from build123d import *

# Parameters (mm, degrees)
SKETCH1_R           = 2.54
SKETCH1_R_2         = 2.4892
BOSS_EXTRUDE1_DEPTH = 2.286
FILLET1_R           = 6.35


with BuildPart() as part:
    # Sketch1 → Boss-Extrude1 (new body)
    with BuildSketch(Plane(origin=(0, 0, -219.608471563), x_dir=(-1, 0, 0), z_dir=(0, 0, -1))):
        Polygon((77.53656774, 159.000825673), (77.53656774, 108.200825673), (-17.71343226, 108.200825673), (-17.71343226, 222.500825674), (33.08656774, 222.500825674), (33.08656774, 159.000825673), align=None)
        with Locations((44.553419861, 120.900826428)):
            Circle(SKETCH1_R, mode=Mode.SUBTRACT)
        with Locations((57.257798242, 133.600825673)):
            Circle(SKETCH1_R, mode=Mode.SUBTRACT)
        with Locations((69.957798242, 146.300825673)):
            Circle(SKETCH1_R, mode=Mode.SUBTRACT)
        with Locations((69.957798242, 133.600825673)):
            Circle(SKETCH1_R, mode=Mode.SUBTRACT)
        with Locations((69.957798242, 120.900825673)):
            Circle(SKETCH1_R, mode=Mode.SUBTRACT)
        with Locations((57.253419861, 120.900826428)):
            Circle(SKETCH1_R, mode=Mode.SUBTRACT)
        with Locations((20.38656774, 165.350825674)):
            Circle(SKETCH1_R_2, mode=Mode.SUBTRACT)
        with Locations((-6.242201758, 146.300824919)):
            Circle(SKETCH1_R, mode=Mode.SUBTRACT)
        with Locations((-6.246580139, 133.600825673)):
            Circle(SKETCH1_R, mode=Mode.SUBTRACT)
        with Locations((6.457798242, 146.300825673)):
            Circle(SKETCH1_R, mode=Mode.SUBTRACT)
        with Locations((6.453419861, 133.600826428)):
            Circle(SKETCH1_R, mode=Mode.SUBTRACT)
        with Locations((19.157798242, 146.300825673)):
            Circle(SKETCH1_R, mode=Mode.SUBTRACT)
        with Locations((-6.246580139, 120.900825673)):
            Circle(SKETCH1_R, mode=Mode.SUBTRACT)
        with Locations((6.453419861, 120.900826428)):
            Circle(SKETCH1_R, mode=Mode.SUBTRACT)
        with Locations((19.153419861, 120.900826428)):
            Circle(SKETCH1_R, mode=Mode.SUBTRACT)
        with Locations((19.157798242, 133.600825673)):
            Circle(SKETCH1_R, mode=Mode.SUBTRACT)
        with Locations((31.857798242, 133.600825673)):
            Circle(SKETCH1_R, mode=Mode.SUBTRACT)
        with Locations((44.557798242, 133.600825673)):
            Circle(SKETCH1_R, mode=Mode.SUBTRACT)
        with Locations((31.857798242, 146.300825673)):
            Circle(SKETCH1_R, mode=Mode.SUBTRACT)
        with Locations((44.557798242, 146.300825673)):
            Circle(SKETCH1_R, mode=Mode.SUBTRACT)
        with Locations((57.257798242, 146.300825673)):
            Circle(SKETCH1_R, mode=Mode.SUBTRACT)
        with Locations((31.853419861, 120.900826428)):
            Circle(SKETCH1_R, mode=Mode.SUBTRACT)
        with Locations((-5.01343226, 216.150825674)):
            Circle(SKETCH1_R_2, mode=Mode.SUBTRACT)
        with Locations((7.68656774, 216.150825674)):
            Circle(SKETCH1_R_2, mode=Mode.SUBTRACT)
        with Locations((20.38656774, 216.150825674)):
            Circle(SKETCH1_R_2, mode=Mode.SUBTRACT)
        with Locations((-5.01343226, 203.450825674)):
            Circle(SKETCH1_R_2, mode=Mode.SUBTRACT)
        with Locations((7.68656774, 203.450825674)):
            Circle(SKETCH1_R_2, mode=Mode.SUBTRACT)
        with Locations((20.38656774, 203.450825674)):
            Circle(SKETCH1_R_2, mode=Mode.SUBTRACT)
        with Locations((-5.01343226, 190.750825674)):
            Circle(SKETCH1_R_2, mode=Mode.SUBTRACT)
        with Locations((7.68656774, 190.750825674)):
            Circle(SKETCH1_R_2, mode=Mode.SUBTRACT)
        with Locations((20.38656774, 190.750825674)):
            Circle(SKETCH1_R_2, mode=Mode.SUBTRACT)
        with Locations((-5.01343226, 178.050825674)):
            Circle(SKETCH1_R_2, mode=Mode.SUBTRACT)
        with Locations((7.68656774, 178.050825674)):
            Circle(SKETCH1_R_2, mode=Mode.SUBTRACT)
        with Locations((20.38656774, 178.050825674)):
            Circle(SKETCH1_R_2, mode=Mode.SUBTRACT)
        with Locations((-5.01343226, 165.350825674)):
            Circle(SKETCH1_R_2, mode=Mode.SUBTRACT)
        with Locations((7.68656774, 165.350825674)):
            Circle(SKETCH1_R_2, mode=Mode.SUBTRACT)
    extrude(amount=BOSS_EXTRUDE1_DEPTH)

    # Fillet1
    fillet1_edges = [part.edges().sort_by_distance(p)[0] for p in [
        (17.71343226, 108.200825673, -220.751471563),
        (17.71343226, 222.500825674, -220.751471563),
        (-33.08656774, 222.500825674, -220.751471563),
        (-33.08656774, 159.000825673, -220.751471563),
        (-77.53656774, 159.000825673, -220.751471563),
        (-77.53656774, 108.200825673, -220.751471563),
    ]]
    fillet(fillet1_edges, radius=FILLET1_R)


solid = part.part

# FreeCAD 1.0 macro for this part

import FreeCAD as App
import Part
import Sketcher

V = App.Vector
Q = App.Units.Quantity


def edges_at(feature, points):
    """Names of the edges that pass closest to the given points."""
    edges = feature.Shape.Edges
    near = lambda p: min(range(len(edges)), key=lambda i: edges[i].distToShape(Part.Vertex(*p))[0])
    return sorted({f"Edge{near(p) + 1}" for p in points})

doc = App.newDocument("Part")
body = doc.addObject("PartDesign::Body", "Body")

# Sketch on XY plane
sketch1 = doc.addObject("Sketcher::SketchObject", "Sketch")
body.addObject(sketch1)
sketch1.AttachmentSupport = (doc.XY_Plane, [""])
sketch1.MapMode = "FlatFace"
sketch1.AttachmentOffset = App.Placement(V(0, 0, -219.608472), App.Rotation())
sketch1.addGeometry(Part.LineSegment(V(-77.5, 108.2, 0), V(-77.5, 159, 0)), False)
sketch1.addGeometry(Part.LineSegment(V(-77.5, 159, 0), V(-33.1, 159, 0)), False)
sketch1.addGeometry(Part.LineSegment(V(-33.1, 159, 0), V(-33.1, 222.5, 0)), False)
sketch1.addGeometry(Part.LineSegment(V(-33.1, 222.5, 0), V(17.7, 222.5, 0)), False)
sketch1.addGeometry(Part.LineSegment(V(17.7, 222.5, 0), V(17.7, 108.2, 0)), False)
sketch1.addGeometry(Part.LineSegment(V(17.7, 108.2, 0), V(-77.5, 108.2, 0)), False)
sketch1.addGeometry(Part.Circle(V(-70, 120.9, 0), V(0, 0, 1), 2.5), False)
sketch1.addGeometry(Part.Circle(V(-57.3, 120.9, 0), V(0, 0, 1), 2.5), False)
sketch1.addGeometry(Part.Circle(V(-70, 133.6, 0), V(0, 0, 1), 2.5), False)
sketch1.addGeometry(Part.Circle(V(-57.3, 133.6, 0), V(0, 0, 1), 2.5), False)
sketch1.addGeometry(Part.Circle(V(-44.6, 120.9, 0), V(0, 0, 1), 2.5), False)
sketch1.addGeometry(Part.Circle(V(-44.6, 133.6, 0), V(0, 0, 1), 2.5), False)
sketch1.addGeometry(Part.Circle(V(-31.9, 133.6, 0), V(0, 0, 1), 2.5), False)
sketch1.addGeometry(Part.Circle(V(-70, 146.3, 0), V(0, 0, 1), 2.5), False)
sketch1.addGeometry(Part.Circle(V(-57.3, 146.3, 0), V(0, 0, 1), 2.5), False)
sketch1.addGeometry(Part.Circle(V(-44.6, 146.3, 0), V(0, 0, 1), 2.5), False)
sketch1.addGeometry(Part.Circle(V(-31.9, 146.3, 0), V(0, 0, 1), 2.5), False)
sketch1.addGeometry(Part.Circle(V(-31.9, 120.9, 0), V(0, 0, 1), 2.5), False)
sketch1.addGeometry(Part.Circle(V(-19.2, 120.9, 0), V(0, 0, 1), 2.5), False)
sketch1.addGeometry(Part.Circle(V(-19.2, 133.6, 0), V(0, 0, 1), 2.5), False)
sketch1.addGeometry(Part.Circle(V(-6.5, 120.9, 0), V(0, 0, 1), 2.5), False)
sketch1.addGeometry(Part.Circle(V(6.2, 120.9, 0), V(0, 0, 1), 2.5), False)
sketch1.addGeometry(Part.Circle(V(-6.5, 133.6, 0), V(0, 0, 1), 2.5), False)
sketch1.addGeometry(Part.Circle(V(6.2, 133.6, 0), V(0, 0, 1), 2.5), False)
sketch1.addGeometry(Part.Circle(V(-19.2, 146.3, 0), V(0, 0, 1), 2.5), False)
sketch1.addGeometry(Part.Circle(V(-20.4, 165.4, 0), V(0, 0, 1), 2.5), False)
sketch1.addGeometry(Part.Circle(V(-6.5, 146.3, 0), V(0, 0, 1), 2.5), False)
sketch1.addGeometry(Part.Circle(V(6.2, 146.3, 0), V(0, 0, 1), 2.5), False)
sketch1.addGeometry(Part.Circle(V(-7.7, 165.4, 0), V(0, 0, 1), 2.5), False)
sketch1.addGeometry(Part.Circle(V(5, 165.4, 0), V(0, 0, 1), 2.5), False)
sketch1.addGeometry(Part.Circle(V(-20.4, 178.1, 0), V(0, 0, 1), 2.5), False)
sketch1.addGeometry(Part.Circle(V(-20.4, 190.8, 0), V(0, 0, 1), 2.5), False)
sketch1.addGeometry(Part.Circle(V(-7.7, 178.1, 0), V(0, 0, 1), 2.5), False)
sketch1.addGeometry(Part.Circle(V(5, 178.1, 0), V(0, 0, 1), 2.5), False)
sketch1.addGeometry(Part.Circle(V(-7.7, 190.8, 0), V(0, 0, 1), 2.5), False)
sketch1.addGeometry(Part.Circle(V(5, 190.8, 0), V(0, 0, 1), 2.5), False)
sketch1.addGeometry(Part.Circle(V(-20.4, 203.5, 0), V(0, 0, 1), 2.5), False)
sketch1.addGeometry(Part.Circle(V(-20.4, 216.2, 0), V(0, 0, 1), 2.5), False)
sketch1.addGeometry(Part.Circle(V(-7.7, 203.5, 0), V(0, 0, 1), 2.5), False)
sketch1.addGeometry(Part.Circle(V(5, 203.5, 0), V(0, 0, 1), 2.5), False)
sketch1.addGeometry(Part.Circle(V(-7.7, 216.2, 0), V(0, 0, 1), 2.5), False)
sketch1.addGeometry(Part.Circle(V(5, 216.2, 0), V(0, 0, 1), 2.5), False)
sketch1.addConstraint(Sketcher.Constraint("Coincident", 0, 2, 1, 1))
sketch1.addConstraint(Sketcher.Constraint("Coincident", 1, 2, 2, 1))
sketch1.addConstraint(Sketcher.Constraint("Coincident", 2, 2, 3, 1))
sketch1.addConstraint(Sketcher.Constraint("Coincident", 3, 2, 4, 1))
sketch1.addConstraint(Sketcher.Constraint("Coincident", 4, 2, 5, 1))
sketch1.addConstraint(Sketcher.Constraint("Coincident", 5, 2, 0, 1))
sketch1.addConstraint(Sketcher.Constraint("Vertical", 0))
sketch1.addConstraint(Sketcher.Constraint("Horizontal", 1))
sketch1.addConstraint(Sketcher.Constraint("Vertical", 2))
sketch1.addConstraint(Sketcher.Constraint("Horizontal", 3))
sketch1.addConstraint(Sketcher.Constraint("Vertical", 4))
sketch1.addConstraint(Sketcher.Constraint("Horizontal", 5))
sketch1.addConstraint(Sketcher.Constraint("Equal", 6, 7))
sketch1.addConstraint(Sketcher.Constraint("Equal", 7, 8))
sketch1.addConstraint(Sketcher.Constraint("Equal", 8, 9))
sketch1.addConstraint(Sketcher.Constraint("Equal", 9, 10))
sketch1.addConstraint(Sketcher.Constraint("Equal", 10, 11))
sketch1.addConstraint(Sketcher.Constraint("Equal", 11, 12))
sketch1.addConstraint(Sketcher.Constraint("Equal", 12, 13))
sketch1.addConstraint(Sketcher.Constraint("Equal", 13, 14))
sketch1.addConstraint(Sketcher.Constraint("Equal", 14, 15))
sketch1.addConstraint(Sketcher.Constraint("Equal", 15, 16))
sketch1.addConstraint(Sketcher.Constraint("Equal", 16, 17))
sketch1.addConstraint(Sketcher.Constraint("Equal", 17, 18))
sketch1.addConstraint(Sketcher.Constraint("Equal", 18, 19))
sketch1.addConstraint(Sketcher.Constraint("Equal", 19, 20))
sketch1.addConstraint(Sketcher.Constraint("Equal", 20, 21))
sketch1.addConstraint(Sketcher.Constraint("Equal", 21, 22))
sketch1.addConstraint(Sketcher.Constraint("Equal", 22, 23))
sketch1.addConstraint(Sketcher.Constraint("Equal", 23, 24))
sketch1.addConstraint(Sketcher.Constraint("Equal", 24, 26))
sketch1.addConstraint(Sketcher.Constraint("Equal", 26, 27))
sketch1.addConstraint(Sketcher.Constraint("Equal", 25, 28))
sketch1.addConstraint(Sketcher.Constraint("Equal", 28, 29))
sketch1.addConstraint(Sketcher.Constraint("Equal", 29, 30))
sketch1.addConstraint(Sketcher.Constraint("Equal", 30, 31))
sketch1.addConstraint(Sketcher.Constraint("Equal", 31, 32))
sketch1.addConstraint(Sketcher.Constraint("Equal", 32, 33))
sketch1.addConstraint(Sketcher.Constraint("Equal", 33, 34))
sketch1.addConstraint(Sketcher.Constraint("Equal", 34, 35))
sketch1.addConstraint(Sketcher.Constraint("Equal", 35, 36))
sketch1.addConstraint(Sketcher.Constraint("Equal", 36, 37))
sketch1.addConstraint(Sketcher.Constraint("Equal", 37, 38))
sketch1.addConstraint(Sketcher.Constraint("Equal", 38, 39))
sketch1.addConstraint(Sketcher.Constraint("Equal", 39, 40))
sketch1.addConstraint(Sketcher.Constraint("Equal", 40, 41))
sketch1.addConstraint(Sketcher.Constraint("Horizontal", 6, 3, 7, 3))
sketch1.addConstraint(Sketcher.Constraint("Horizontal", 8, 3, 9, 3))
sketch1.addConstraint(Sketcher.Constraint("Horizontal", 7, 3, 10, 3))
sketch1.addConstraint(Sketcher.Constraint("Horizontal", 9, 3, 11, 3))
sketch1.addConstraint(Sketcher.Constraint("Horizontal", 11, 3, 12, 3))
sketch1.addConstraint(Sketcher.Constraint("Horizontal", 13, 3, 14, 3))
sketch1.addConstraint(Sketcher.Constraint("Horizontal", 14, 3, 15, 3))
sketch1.addConstraint(Sketcher.Constraint("Horizontal", 15, 3, 16, 3))
sketch1.addConstraint(Sketcher.Constraint("Horizontal", 10, 3, 17, 3))
sketch1.addConstraint(Sketcher.Constraint("Horizontal", 17, 3, 18, 3))
sketch1.addConstraint(Sketcher.Constraint("Horizontal", 12, 3, 19, 3))
sketch1.addConstraint(Sketcher.Constraint("Horizontal", 18, 3, 20, 3))
sketch1.addConstraint(Sketcher.Constraint("Horizontal", 20, 3, 21, 3))
sketch1.addConstraint(Sketcher.Constraint("Horizontal", 19, 3, 22, 3))
sketch1.addConstraint(Sketcher.Constraint("Horizontal", 22, 3, 23, 3))
sketch1.addConstraint(Sketcher.Constraint("Horizontal", 16, 3, 24, 3))
sketch1.addConstraint(Sketcher.Constraint("Horizontal", 24, 3, 26, 3))
sketch1.addConstraint(Sketcher.Constraint("Horizontal", 26, 3, 27, 3))
sketch1.addConstraint(Sketcher.Constraint("Horizontal", 25, 3, 28, 3))
sketch1.addConstraint(Sketcher.Constraint("Horizontal", 28, 3, 29, 3))
sketch1.addConstraint(Sketcher.Constraint("Horizontal", 30, 3, 32, 3))
sketch1.addConstraint(Sketcher.Constraint("Horizontal", 32, 3, 33, 3))
sketch1.addConstraint(Sketcher.Constraint("Horizontal", 31, 3, 34, 3))
sketch1.addConstraint(Sketcher.Constraint("Horizontal", 34, 3, 35, 3))
sketch1.addConstraint(Sketcher.Constraint("Horizontal", 36, 3, 38, 3))
sketch1.addConstraint(Sketcher.Constraint("Horizontal", 38, 3, 39, 3))
sketch1.addConstraint(Sketcher.Constraint("Horizontal", 37, 3, 40, 3))
sketch1.addConstraint(Sketcher.Constraint("Horizontal", 40, 3, 41, 3))
sketch1.addConstraint(Sketcher.Constraint("Vertical", 6, 3, 8, 3))
sketch1.addConstraint(Sketcher.Constraint("Vertical", 8, 3, 13, 3))
sketch1.addConstraint(Sketcher.Constraint("Vertical", 9, 3, 14, 3))
sketch1.addConstraint(Sketcher.Constraint("Vertical", 11, 3, 15, 3))
sketch1.addConstraint(Sketcher.Constraint("Vertical", 12, 3, 16, 3))
sketch1.addConstraint(Sketcher.Constraint("Vertical", 20, 3, 22, 3))
sketch1.addConstraint(Sketcher.Constraint("Vertical", 21, 3, 23, 3))
sketch1.addConstraint(Sketcher.Constraint("Vertical", 19, 3, 24, 3))
sketch1.addConstraint(Sketcher.Constraint("Vertical", 25, 3, 30, 3))
sketch1.addConstraint(Sketcher.Constraint("Vertical", 30, 3, 31, 3))
sketch1.addConstraint(Sketcher.Constraint("Vertical", 28, 3, 32, 3))
sketch1.addConstraint(Sketcher.Constraint("Vertical", 29, 3, 33, 3))
sketch1.addConstraint(Sketcher.Constraint("Vertical", 32, 3, 34, 3))
sketch1.addConstraint(Sketcher.Constraint("Vertical", 33, 3, 35, 3))
sketch1.addConstraint(Sketcher.Constraint("Vertical", 31, 3, 36, 3))
sketch1.addConstraint(Sketcher.Constraint("Vertical", 36, 3, 37, 3))
sketch1.addConstraint(Sketcher.Constraint("Vertical", 34, 3, 38, 3))
sketch1.addConstraint(Sketcher.Constraint("Vertical", 35, 3, 39, 3))
sketch1.addConstraint(Sketcher.Constraint("Vertical", 38, 3, 40, 3))
sketch1.addConstraint(Sketcher.Constraint("Vertical", 39, 3, 41, 3))
sketch1.addConstraint(Sketcher.Constraint("Equal", 3, 0))
sketch1.addConstraint(Sketcher.Constraint("Diameter", 6, Q("0.2 in")))
sketch1.addConstraint(Sketcher.Constraint("DistanceX", 3, 1, 3, 2, Q("2 in")))
sketch1.addConstraint(Sketcher.Constraint("Diameter", 25, Q("0.196 in")))
sketch1.addConstraint(Sketcher.Constraint("DistanceY", 2, 1, 2, 2, Q("2.5 in")))
sketch1.addConstraint(Sketcher.Constraint("DistanceX", 8, 3, 11, 3, Q("1 in")))
sketch1.addConstraint(Sketcher.Constraint("DistanceX", 9, 3, 12, 3, Q("1 in")))
sketch1.addConstraint(Sketcher.Constraint("DistanceY", 6, 3, 13, 3, Q("1 in")))
sketch1.addConstraint(Sketcher.Constraint("DistanceX", 7, 3, 17, 3, Q("1 in")))
sketch1.addConstraint(Sketcher.Constraint("DistanceX", 10, 3, 18, 3, Q("1 in")))
sketch1.addConstraint(Sketcher.Constraint("DistanceX", 11, 3, 19, 3, Q("1 in")))
sketch1.addConstraint(Sketcher.Constraint("DistanceX", 17, 3, 20, 3, Q("1 in")))
sketch1.addConstraint(Sketcher.Constraint("DistanceX", 18, 3, 21, 3, Q("1 in")))
sketch1.addConstraint(Sketcher.Constraint("DistanceX", 24, 3, 27, 3, Q("1 in")))
sketch1.addConstraint(Sketcher.Constraint("DistanceX", 25, 3, 29, 3, Q("1 in")))
sketch1.addConstraint(Sketcher.Constraint("DistanceY", 25, 3, 31, 3, Q("1 in")))
sketch1.addConstraint(Sketcher.Constraint("DistanceY", 30, 3, 36, 3, Q("1 in")))
sketch1.addConstraint(Sketcher.Constraint("DistanceY", 31, 3, 37, 3, Q("1 in")))
sketch1.addConstraint(Sketcher.Constraint("DistanceY", 8, 3, 0, 2, Q("1 in")))
sketch1.addConstraint(Sketcher.Constraint("DistanceX", 2, 2, 40, 3, Q("1 in")))
sketch1.addConstraint(Sketcher.Constraint("DistanceX", 1, 1, 1, 2, Q("1.75 in")))
sketch1.addConstraint(Sketcher.Constraint("DistanceY", 6, 3, 8, 3, Q("0.5 in")))
sketch1.addConstraint(Sketcher.Constraint("DistanceX", 8, 3, 9, 3, Q("0.5 in")))
sketch1.addConstraint(Sketcher.Constraint("DistanceX", 7, 3, 10, 3, Q("0.5 in")))
sketch1.addConstraint(Sketcher.Constraint("DistanceX", 24, 3, 26, 3, Q("0.5 in")))
sketch1.addConstraint(Sketcher.Constraint("DistanceX", 25, 3, 28, 3, Q("0.5 in")))
sketch1.addConstraint(Sketcher.Constraint("DistanceY", 25, 3, 30, 3, Q("0.5 in")))
sketch1.addConstraint(Sketcher.Constraint("DistanceY", 24, 3, 25, 3, Q("0.75 in")))
sketch1.addConstraint(Sketcher.Constraint("DistanceX", 6, 3, -1, 1, Q("69.957798 mm")))
sketch1.addConstraint(Sketcher.Constraint("DistanceX", 7, 3, -1, 1, Q("57.25342 mm")))
sketch1.addConstraint(Sketcher.Constraint("DistanceX", 25, 3, 24, 3, Q("1.228769 mm")))
sketch1.addConstraint(Sketcher.Constraint("DistanceY", -1, 1, 6, 3, Q("120.900826 mm")))
pad1 = doc.addObject("PartDesign::Pad", "Pad")
body.addObject(pad1)
pad1.Profile = sketch1
pad1.Length = Q("0.09 in")
pad1.Reversed = True
doc.recompute()

fillet = doc.addObject("PartDesign::Fillet", "Fillet")
body.addObject(fillet)
fillet.Base = (pad1, edges_at(pad1, [
    (17.713, 108.201, -220.751),
    (17.713, 222.501, -220.751),
    (-33.087, 222.501, -220.751),
    (-33.087, 159.001, -220.751),
    (-77.537, 159.001, -220.751),
    (-77.537, 108.201, -220.751),
]))
fillet.Radius = Q("0.25 in")

doc.recompute()
